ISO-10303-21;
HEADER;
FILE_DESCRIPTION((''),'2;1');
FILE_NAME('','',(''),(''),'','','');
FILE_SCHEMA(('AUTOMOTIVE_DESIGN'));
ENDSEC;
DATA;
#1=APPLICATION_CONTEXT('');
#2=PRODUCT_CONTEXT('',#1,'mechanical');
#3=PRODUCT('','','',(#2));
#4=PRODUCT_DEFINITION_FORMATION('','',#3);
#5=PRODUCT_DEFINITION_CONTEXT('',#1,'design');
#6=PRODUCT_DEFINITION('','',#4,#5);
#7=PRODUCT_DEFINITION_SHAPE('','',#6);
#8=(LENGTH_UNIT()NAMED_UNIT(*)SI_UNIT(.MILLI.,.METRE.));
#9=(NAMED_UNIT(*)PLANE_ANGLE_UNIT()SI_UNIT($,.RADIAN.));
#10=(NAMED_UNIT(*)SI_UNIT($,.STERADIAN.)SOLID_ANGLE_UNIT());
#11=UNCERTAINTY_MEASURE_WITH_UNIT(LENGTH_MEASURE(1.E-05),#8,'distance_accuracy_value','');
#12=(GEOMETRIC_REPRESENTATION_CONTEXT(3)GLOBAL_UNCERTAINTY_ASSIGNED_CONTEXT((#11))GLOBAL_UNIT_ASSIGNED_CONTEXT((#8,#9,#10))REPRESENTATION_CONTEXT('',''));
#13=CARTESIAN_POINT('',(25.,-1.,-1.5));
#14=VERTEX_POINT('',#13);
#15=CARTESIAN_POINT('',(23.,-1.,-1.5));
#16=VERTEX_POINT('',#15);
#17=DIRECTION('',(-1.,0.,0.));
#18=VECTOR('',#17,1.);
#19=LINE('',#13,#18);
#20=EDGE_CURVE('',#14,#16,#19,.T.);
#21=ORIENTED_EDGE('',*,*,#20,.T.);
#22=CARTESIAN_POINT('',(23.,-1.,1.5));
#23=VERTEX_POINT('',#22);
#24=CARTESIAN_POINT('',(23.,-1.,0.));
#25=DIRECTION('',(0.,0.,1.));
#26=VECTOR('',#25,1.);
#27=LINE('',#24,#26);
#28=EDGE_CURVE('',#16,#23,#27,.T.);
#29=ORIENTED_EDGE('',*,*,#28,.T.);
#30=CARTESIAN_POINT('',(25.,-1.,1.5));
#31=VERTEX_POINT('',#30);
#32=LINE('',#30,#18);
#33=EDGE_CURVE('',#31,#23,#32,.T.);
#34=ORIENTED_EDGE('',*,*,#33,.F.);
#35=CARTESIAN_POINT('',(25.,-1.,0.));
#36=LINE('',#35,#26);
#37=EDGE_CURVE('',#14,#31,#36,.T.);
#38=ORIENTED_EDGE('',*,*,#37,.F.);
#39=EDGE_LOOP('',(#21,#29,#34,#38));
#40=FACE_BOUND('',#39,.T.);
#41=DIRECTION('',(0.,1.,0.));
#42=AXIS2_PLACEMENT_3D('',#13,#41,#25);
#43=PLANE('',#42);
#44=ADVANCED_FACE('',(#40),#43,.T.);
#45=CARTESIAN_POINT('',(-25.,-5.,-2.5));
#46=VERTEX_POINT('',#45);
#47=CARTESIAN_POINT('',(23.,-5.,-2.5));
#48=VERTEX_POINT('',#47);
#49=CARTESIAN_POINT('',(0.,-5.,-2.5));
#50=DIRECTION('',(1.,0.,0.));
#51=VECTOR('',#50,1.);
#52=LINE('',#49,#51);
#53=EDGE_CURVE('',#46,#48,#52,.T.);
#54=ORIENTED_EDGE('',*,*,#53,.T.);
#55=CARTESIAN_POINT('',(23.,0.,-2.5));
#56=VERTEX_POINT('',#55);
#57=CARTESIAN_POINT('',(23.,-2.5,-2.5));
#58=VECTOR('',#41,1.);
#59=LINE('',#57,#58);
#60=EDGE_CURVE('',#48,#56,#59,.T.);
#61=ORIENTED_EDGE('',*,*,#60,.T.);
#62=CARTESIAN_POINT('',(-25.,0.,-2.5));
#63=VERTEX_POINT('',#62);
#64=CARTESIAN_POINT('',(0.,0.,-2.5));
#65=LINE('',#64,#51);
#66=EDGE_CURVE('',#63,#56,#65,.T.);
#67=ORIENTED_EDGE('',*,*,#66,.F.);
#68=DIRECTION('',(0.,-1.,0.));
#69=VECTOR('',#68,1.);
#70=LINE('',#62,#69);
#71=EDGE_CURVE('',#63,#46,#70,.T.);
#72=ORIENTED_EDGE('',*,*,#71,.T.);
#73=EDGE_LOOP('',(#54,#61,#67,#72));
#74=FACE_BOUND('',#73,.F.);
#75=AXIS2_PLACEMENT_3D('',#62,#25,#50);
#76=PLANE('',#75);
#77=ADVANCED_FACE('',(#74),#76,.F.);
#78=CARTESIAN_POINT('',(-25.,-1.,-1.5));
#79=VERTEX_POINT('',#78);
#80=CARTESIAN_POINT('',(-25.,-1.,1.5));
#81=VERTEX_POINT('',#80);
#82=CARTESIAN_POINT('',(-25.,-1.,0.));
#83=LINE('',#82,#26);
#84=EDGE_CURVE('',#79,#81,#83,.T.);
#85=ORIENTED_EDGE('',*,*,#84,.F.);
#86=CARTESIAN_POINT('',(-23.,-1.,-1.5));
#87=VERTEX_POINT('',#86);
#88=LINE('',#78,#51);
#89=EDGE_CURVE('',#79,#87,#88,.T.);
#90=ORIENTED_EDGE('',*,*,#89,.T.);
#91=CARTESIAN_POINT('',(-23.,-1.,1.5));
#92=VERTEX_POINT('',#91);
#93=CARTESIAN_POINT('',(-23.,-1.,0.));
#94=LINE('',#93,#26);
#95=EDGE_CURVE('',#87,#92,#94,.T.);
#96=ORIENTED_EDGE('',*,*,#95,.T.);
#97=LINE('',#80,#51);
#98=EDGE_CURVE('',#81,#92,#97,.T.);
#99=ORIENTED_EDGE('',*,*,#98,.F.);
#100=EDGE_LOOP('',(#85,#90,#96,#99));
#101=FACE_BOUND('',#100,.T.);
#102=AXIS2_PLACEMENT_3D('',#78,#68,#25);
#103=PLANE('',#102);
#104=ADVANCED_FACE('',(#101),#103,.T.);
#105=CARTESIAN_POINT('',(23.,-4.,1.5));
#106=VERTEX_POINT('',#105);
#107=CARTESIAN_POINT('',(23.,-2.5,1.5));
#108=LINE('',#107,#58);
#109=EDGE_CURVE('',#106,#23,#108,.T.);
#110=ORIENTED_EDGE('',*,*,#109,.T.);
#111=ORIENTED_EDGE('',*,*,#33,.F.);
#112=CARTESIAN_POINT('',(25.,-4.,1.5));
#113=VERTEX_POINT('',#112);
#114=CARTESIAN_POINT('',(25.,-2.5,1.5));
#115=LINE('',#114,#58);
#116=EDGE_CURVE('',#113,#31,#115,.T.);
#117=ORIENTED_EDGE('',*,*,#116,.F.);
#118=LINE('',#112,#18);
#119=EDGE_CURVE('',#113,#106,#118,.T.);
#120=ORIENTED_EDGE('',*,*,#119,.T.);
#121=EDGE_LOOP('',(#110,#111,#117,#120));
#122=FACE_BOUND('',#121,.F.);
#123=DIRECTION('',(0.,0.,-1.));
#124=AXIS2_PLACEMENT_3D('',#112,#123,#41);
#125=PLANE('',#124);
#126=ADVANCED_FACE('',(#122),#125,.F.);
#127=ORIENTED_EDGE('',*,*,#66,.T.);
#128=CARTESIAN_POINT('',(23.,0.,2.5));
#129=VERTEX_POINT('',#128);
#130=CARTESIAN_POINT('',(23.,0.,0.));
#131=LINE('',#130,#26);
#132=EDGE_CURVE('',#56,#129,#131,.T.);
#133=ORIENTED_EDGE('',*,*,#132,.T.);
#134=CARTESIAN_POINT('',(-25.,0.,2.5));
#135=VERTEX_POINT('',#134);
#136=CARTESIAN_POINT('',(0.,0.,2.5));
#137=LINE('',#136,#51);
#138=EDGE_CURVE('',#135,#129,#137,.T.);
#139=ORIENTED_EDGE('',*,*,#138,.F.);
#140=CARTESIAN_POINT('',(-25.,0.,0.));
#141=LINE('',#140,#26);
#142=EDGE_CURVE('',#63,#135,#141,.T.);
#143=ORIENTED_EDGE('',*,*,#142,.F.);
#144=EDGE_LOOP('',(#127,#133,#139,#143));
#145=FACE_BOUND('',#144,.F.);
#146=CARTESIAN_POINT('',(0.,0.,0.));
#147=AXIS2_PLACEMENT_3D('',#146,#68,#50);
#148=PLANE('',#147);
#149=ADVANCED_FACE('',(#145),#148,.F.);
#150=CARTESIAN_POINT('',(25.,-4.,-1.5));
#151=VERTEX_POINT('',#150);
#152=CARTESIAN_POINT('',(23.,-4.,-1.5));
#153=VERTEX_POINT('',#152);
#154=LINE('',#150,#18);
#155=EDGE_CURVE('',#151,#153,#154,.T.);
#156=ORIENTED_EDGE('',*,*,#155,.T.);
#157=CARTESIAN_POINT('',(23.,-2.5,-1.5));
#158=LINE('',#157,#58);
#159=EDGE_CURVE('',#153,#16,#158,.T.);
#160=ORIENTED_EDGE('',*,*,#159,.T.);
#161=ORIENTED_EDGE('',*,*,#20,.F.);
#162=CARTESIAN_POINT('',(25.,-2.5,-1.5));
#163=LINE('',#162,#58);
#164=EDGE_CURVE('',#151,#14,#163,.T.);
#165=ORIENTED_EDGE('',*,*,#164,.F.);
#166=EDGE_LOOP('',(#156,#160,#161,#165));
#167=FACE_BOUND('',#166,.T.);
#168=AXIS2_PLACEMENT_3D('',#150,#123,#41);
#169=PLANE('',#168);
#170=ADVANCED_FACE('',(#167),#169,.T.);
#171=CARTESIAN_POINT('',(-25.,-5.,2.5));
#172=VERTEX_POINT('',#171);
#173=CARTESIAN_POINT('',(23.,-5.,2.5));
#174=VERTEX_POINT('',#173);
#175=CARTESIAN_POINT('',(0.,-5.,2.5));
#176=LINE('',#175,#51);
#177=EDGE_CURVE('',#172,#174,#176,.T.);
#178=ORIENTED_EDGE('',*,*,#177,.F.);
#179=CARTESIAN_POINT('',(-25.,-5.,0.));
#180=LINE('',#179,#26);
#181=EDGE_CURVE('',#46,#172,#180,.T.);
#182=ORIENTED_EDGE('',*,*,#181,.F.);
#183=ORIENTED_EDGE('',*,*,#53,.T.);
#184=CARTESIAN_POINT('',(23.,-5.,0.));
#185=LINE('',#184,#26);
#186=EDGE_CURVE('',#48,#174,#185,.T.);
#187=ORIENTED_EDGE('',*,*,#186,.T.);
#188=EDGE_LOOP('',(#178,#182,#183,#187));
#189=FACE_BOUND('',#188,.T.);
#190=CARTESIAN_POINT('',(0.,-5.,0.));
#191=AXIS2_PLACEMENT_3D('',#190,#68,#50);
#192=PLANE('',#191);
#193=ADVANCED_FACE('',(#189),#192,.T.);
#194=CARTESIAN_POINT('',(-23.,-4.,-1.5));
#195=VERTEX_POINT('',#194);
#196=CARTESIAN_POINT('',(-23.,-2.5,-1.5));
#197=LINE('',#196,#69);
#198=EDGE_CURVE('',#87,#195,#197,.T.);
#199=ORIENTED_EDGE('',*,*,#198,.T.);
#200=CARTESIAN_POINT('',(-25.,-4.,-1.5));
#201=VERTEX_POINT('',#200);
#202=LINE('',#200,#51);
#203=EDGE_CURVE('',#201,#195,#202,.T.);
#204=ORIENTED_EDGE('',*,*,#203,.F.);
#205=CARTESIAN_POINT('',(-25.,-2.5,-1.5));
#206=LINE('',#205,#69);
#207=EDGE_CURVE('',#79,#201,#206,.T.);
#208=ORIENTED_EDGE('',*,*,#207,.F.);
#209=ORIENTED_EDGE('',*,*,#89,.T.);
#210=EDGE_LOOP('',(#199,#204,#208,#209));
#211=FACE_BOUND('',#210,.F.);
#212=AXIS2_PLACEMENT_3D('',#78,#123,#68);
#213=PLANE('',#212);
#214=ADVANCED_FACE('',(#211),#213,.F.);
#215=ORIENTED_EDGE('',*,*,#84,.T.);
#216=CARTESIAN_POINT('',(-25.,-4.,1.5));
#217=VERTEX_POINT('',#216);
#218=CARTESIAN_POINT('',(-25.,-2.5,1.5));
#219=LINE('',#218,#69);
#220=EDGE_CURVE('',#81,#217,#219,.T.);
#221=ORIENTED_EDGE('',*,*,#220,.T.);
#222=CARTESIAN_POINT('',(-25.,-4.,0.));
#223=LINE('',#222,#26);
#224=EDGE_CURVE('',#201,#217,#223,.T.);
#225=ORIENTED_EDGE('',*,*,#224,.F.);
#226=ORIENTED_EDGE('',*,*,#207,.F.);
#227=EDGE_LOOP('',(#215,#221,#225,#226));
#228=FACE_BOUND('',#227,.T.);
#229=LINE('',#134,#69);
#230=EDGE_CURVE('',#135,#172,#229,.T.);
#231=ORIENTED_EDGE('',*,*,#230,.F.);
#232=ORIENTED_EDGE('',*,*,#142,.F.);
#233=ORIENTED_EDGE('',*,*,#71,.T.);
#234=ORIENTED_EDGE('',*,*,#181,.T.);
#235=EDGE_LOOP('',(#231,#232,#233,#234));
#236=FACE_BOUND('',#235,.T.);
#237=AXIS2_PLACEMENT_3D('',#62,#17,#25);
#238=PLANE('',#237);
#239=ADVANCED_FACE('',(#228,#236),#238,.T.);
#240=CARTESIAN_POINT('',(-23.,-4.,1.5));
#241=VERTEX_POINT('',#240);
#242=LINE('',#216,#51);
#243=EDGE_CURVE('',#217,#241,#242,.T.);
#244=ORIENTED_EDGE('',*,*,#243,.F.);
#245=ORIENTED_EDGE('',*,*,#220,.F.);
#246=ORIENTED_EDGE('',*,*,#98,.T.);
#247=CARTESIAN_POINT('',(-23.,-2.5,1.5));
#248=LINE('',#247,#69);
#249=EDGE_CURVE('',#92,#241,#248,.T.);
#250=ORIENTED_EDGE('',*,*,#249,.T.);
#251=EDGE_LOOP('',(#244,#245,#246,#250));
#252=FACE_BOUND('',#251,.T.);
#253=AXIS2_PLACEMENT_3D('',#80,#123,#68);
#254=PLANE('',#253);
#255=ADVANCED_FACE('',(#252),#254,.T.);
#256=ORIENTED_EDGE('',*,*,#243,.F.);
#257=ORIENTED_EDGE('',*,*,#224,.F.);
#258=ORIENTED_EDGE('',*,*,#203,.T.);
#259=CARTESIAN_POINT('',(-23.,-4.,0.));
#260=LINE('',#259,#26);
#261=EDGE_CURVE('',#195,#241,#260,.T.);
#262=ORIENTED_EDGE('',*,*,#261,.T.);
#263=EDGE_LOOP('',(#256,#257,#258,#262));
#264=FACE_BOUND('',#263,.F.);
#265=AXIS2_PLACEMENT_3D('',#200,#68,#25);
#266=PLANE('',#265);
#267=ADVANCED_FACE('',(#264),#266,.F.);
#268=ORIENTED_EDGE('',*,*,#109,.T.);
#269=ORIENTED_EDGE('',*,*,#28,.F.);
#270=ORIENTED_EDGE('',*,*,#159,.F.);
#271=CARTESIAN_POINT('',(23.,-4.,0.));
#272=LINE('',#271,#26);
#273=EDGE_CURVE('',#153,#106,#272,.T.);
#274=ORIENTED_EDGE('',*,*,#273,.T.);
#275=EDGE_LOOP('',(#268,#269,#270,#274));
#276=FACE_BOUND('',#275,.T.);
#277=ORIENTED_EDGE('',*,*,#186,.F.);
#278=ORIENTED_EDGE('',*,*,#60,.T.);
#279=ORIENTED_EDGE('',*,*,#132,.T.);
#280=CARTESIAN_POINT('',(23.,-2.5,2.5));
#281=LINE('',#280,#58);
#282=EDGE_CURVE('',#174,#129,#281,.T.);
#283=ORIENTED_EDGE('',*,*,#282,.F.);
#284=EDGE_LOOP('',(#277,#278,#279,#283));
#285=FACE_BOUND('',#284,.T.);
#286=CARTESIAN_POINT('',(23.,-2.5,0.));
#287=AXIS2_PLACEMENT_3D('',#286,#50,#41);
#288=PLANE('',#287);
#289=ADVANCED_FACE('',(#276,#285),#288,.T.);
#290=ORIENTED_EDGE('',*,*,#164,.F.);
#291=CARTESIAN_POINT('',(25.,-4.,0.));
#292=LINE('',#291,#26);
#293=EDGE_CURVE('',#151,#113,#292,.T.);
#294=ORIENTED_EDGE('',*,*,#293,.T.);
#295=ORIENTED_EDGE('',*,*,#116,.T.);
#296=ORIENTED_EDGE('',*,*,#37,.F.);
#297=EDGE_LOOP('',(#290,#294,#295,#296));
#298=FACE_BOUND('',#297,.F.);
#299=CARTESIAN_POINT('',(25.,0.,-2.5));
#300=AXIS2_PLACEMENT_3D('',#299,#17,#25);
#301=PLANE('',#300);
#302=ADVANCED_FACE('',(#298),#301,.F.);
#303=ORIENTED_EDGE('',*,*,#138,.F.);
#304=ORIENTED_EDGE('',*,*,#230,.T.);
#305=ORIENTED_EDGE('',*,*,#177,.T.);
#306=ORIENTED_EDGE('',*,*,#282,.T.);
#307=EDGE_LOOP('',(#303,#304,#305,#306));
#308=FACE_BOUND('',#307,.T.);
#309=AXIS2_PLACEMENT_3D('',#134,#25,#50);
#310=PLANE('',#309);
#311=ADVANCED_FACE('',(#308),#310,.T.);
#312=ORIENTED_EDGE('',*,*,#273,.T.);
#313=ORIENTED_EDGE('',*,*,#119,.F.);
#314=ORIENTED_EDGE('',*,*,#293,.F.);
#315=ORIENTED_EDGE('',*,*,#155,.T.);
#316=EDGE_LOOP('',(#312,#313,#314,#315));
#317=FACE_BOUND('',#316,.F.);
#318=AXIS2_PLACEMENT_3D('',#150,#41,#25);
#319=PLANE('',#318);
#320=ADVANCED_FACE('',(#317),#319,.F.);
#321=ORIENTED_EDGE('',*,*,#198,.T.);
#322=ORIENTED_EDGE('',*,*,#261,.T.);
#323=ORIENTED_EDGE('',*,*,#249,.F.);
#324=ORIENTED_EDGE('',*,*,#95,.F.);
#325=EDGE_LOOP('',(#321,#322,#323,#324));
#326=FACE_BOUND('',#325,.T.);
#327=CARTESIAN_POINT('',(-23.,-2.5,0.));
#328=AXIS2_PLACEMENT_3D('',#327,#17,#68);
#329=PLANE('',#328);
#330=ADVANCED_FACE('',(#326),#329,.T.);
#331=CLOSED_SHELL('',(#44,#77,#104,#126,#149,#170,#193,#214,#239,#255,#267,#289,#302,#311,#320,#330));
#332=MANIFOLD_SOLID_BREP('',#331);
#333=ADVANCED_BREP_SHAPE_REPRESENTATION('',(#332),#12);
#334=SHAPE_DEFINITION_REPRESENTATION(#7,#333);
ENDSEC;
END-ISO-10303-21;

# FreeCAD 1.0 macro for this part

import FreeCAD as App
import Part
import Sketcher
Q = App.Units.Quantity

doc = App.newDocument("Part")
body = doc.addObject("PartDesign::Body", "Body")

# Sketch on XZ plane
sketch1 = body.newObject("Sketcher::SketchObject", "Sketch")
sketch1.AttachmentSupport = (doc.getObject("XZ_Plane"), [""])
sketch1.MapMode = "FlatFace"
sketch1.addGeometry([
    Part.LineSegment(App.Vector(-25, 2, 0), App.Vector(-25, -2, 0)),
    Part.LineSegment(App.Vector(-25, -2, 0), App.Vector(25, -2, 0)),
    Part.LineSegment(App.Vector(25, -2, 0), App.Vector(25, 2, 0)),
    Part.LineSegment(App.Vector(25, 2, 0), App.Vector(-25, 2, 0)),
], False)
sketch1.addConstraint([
    Sketcher.Constraint("Coincident", 0, 2, 1, 1),
    Sketcher.Constraint("Coincident", 1, 2, 2, 1),
    Sketcher.Constraint("Coincident", 2, 2, 3, 1),
    Sketcher.Constraint("Coincident", 3, 2, 0, 1),
    Sketcher.Constraint("Vertical", 0),
    Sketcher.Constraint("Horizontal", 1),
    Sketcher.Constraint("Vertical", 2),
    Sketcher.Constraint("Horizontal", 3),
    Sketcher.Constraint("Symmetric", 0, 2, 2, 2, -1, 1),
    Sketcher.Constraint("DistanceX", 1, 1, 1, 2, Q("50 mm")),
    Sketcher.Constraint("DistanceY", 0, 2, 0, 1, Q("5 mm")),
])
pad1 = body.newObject("PartDesign::Pad", "Pad")
pad1.Profile = sketch1
pad1.Length = 5

# Sketch on YZ plane
sketch2 = body.newObject("Sketcher::SketchObject", "Sketch001")
sketch2.AttachmentSupport = (doc.getObject("YZ_Plane"), [""])
sketch2.MapMode = "FlatFace"
sketch2.AttachmentOffset = App.Placement(App.Vector(0, 0, -25), App.Rotation())
sketch2.addGeometry([
    Part.LineSegment(App.Vector(-1, 1.5, 0), App.Vector(-1, -1.5, 0)),
    Part.LineSegment(App.Vector(-1, -1.5, 0), App.Vector(-4, -1.5, 0)),
    Part.LineSegment(App.Vector(-4, -1.5, 0), App.Vector(-4, 1.5, 0)),
    Part.LineSegment(App.Vector(-4, 1.5, 0), App.Vector(-1, 1.5, 0)),
], False)
sketch2.addConstraint([
    Sketcher.Constraint("Coincident", 0, 2, 1, 1),
    Sketcher.Constraint("Coincident", 1, 2, 2, 1),
    Sketcher.Constraint("Coincident", 2, 2, 3, 1),
    Sketcher.Constraint("Coincident", 3, 2, 0, 1),
    Sketcher.Constraint("Vertical", 0),
    Sketcher.Constraint("Horizontal", 1),
    Sketcher.Constraint("Vertical", 2),
    Sketcher.Constraint("Horizontal", 3),
    Sketcher.Constraint("Equal", 3, 0),
    Sketcher.Constraint("DistanceX", 1, 2, 1, 1, Q("3 mm")),
    Sketcher.Constraint("DistanceX", 0, 2, -1, 1, Q("1 mm")),
    Sketcher.Constraint("DistanceY", 0, 2, -1, 1, Q("1.5 mm")),
])
pocket1 = body.newObject("PartDesign::Pocket", "Pocket")
pocket1.Profile = sketch2
pocket1.Length = 2
pocket1.Reversed = True

# Sketch on YZ plane
sketch3 = body.newObject("Sketcher::SketchObject", "Sketch002")
sketch3.AttachmentSupport = (doc.getObject("YZ_Plane"), [""])
sketch3.MapMode = "FlatFace"
sketch3.AttachmentOffset = App.Placement(App.Vector(0, 0, 25), App.Rotation())
sketch3.addGeometry([
    Part.LineSegment(App.Vector(-5, 2.5, 0), App.Vector(-5, -2.5, 0)),  # 0
    Part.LineSegment(App.Vector(-5, -2.5, 0), App.Vector(0, -2.5, 0)),  # 1
    Part.LineSegment(App.Vector(0, -2.5, 0), App.Vector(0, 2.5, 0)),  # 2
    Part.LineSegment(App.Vector(0, 2.5, 0), App.Vector(-5, 2.5, 0)),  # 3
    Part.LineSegment(App.Vector(-1, -1.5, 0), App.Vector(-4, -1.5, 0)),  # 4
    Part.LineSegment(App.Vector(-4, -1.5, 0), App.Vector(-4, 1.5, 0)),  # 5
    Part.LineSegment(App.Vector(-4, 1.5, 0), App.Vector(-1, 1.5, 0)),  # 6
    Part.LineSegment(App.Vector(-1, 1.5, 0), App.Vector(-1, -1.5, 0)),  # 7
], False)
sketch3.addConstraint([
    Sketcher.Constraint("Coincident", 0, 2, 1, 1),
    Sketcher.Constraint("Coincident", 1, 2, 2, 1),
    Sketcher.Constraint("Coincident", 2, 2, 3, 1),
    Sketcher.Constraint("Coincident", 3, 2, 0, 1),
    Sketcher.Constraint("Coincident", 4, 2, 5, 1),
    Sketcher.Constraint("Coincident", 5, 2, 6, 1),
    Sketcher.Constraint("Coincident", 6, 2, 7, 1),
    Sketcher.Constraint("Coincident", 7, 2, 4, 1),
    Sketcher.Constraint("Vertical", 0),
    Sketcher.Constraint("Horizontal", 1),
    Sketcher.Constraint("Vertical", 2),
    Sketcher.Constraint("Horizontal", 3),
    Sketcher.Constraint("Horizontal", 4),
    Sketcher.Constraint("Vertical", 5),
    Sketcher.Constraint("Horizontal", 6),
    Sketcher.Constraint("Vertical", 7),
    Sketcher.Constraint("Symmetric", 1, 2, 2, 2, -1, 1),
    Sketcher.Constraint("Equal", 3, 0),
    Sketcher.Constraint("Equal", 6, 5),
    Sketcher.Constraint("DistanceX", 1, 1, 1, 2, Q("5 mm")),
    Sketcher.Constraint("DistanceX", 4, 2, 4, 1, Q("3 mm")),
    Sketcher.Constraint("DistanceX", 4, 2, -1, 1, Q("4 mm")),
    Sketcher.Constraint("DistanceY", 0, 2, 4, 2, Q("1 mm")),
])
pocket2 = body.newObject("PartDesign::Pocket", "Pocket001")
pocket2.Profile = sketch3
pocket2.Length = 2

doc.recompute()
